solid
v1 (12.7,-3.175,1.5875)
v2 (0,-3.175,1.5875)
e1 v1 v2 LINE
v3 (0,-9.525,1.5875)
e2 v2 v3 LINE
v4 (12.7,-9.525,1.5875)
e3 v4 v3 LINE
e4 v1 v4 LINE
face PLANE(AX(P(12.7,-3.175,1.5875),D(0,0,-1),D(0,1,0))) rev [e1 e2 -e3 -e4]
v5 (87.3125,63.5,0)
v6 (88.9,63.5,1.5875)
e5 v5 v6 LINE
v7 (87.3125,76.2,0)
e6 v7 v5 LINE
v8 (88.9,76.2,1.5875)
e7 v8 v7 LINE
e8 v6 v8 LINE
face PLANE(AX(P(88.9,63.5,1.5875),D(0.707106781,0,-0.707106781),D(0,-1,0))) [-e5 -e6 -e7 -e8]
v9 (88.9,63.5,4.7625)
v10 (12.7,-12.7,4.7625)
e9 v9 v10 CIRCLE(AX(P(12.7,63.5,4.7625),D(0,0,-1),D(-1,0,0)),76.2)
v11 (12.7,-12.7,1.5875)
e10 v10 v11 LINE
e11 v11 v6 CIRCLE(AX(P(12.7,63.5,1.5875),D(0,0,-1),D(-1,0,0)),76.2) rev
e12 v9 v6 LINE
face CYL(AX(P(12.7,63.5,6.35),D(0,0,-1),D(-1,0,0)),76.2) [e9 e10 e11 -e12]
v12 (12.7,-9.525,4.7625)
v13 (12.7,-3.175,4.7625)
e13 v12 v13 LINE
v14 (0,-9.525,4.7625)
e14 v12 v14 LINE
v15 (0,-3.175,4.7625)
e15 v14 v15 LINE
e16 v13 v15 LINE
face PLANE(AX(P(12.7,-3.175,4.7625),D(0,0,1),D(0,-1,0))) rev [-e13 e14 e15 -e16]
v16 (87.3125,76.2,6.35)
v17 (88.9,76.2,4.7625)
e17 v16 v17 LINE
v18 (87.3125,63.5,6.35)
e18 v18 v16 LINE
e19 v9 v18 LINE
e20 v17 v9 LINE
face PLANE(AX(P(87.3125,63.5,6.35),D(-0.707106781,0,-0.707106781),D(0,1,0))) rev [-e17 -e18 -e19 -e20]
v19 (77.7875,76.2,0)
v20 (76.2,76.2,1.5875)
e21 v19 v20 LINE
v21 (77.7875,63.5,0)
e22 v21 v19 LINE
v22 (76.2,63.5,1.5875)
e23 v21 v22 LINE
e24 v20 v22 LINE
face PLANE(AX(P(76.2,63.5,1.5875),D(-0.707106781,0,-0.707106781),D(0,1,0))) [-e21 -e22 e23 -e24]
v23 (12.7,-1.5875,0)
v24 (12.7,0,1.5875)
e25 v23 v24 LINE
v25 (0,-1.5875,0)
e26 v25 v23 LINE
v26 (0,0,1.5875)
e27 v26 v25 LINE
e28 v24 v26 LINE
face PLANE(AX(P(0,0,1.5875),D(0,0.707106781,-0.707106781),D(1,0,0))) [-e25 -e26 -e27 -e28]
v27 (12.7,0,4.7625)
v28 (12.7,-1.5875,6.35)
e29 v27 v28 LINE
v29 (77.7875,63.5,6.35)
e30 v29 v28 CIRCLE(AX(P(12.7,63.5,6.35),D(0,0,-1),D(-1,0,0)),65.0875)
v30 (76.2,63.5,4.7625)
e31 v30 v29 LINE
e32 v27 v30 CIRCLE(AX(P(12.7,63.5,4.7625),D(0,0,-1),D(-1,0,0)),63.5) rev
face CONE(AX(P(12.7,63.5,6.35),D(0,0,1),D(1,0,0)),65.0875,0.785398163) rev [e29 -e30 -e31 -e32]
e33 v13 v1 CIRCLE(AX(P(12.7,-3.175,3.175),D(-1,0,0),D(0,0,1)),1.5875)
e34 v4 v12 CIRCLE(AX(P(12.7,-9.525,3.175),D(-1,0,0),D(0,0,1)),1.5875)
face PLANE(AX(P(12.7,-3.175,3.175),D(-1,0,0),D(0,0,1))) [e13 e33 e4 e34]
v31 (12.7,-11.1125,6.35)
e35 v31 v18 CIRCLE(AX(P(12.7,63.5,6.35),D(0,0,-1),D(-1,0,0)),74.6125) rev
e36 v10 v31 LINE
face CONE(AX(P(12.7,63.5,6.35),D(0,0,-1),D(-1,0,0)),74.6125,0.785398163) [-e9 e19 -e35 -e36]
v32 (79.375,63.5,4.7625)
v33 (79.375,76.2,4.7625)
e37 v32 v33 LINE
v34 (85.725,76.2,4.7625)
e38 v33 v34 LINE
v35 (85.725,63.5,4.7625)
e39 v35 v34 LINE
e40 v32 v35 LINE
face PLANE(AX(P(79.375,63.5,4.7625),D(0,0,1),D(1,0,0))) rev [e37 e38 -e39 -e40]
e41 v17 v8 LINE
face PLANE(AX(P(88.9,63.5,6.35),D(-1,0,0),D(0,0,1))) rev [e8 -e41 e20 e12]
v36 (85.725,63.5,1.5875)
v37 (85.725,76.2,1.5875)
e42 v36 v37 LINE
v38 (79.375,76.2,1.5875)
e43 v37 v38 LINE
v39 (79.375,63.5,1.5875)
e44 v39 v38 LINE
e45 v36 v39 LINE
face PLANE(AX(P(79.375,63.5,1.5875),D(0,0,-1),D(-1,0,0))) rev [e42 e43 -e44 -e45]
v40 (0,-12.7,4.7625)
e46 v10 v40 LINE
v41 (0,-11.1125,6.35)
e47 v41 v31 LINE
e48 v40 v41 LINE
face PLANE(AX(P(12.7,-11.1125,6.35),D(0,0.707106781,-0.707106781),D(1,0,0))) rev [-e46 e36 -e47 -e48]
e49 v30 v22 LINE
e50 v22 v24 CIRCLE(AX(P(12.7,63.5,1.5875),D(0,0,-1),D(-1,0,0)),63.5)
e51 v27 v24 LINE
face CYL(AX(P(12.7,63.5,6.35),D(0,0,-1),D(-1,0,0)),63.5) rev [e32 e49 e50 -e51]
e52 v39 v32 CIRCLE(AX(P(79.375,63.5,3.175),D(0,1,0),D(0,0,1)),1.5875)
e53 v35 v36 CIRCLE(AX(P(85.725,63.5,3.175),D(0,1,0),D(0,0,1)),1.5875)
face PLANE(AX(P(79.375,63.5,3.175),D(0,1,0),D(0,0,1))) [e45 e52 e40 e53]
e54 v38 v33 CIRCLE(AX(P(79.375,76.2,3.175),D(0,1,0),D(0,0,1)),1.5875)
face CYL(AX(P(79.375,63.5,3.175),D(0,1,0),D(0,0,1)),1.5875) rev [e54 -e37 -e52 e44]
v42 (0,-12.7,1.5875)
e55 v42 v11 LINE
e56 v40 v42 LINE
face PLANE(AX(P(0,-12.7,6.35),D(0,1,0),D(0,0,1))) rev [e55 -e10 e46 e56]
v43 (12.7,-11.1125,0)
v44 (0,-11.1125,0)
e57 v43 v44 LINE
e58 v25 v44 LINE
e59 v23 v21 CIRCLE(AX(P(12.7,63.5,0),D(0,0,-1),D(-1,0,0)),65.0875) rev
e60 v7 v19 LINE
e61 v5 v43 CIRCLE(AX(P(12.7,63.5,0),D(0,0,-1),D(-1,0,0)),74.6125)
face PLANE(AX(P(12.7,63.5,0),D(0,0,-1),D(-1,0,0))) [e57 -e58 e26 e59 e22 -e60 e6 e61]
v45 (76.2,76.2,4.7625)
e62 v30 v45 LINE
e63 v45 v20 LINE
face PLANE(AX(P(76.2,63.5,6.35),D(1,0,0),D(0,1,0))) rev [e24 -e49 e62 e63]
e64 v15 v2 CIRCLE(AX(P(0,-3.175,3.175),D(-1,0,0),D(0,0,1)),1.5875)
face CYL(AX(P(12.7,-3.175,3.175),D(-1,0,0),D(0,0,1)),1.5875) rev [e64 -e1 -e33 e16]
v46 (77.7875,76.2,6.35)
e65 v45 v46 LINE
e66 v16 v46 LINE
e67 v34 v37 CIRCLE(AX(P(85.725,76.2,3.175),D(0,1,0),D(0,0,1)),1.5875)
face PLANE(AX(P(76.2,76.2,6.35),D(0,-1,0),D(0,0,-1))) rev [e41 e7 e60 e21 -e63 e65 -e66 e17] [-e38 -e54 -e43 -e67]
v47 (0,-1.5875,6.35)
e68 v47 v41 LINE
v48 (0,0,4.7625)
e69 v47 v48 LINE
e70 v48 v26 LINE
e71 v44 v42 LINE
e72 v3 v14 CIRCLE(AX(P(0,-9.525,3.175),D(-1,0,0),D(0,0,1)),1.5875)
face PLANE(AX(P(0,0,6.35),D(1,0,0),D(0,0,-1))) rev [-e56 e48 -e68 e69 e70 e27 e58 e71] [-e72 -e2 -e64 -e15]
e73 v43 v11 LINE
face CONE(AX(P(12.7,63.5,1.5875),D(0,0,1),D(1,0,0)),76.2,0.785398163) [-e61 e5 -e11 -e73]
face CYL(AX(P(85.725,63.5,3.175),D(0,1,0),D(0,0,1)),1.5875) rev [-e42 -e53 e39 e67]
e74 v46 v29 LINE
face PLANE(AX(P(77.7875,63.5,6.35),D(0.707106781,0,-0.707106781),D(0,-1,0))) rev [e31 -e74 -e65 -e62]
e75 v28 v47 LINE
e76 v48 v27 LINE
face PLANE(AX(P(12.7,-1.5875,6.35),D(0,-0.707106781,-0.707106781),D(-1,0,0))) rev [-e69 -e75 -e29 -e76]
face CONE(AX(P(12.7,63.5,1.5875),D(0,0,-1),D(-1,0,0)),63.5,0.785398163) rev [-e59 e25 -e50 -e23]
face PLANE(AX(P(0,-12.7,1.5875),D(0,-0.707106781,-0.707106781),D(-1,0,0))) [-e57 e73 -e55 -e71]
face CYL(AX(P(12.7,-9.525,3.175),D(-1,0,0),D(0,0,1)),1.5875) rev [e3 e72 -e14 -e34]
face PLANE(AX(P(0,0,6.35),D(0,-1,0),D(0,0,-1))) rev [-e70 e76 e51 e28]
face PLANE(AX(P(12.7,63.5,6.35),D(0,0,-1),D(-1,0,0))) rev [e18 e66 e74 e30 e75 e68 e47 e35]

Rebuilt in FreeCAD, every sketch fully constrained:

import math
import FreeCAD as App
import Part
import Sketcher
Q = App.Units.Quantity


def edges_at(feature, points):
    """Names of the edges that pass closest to the given points."""
    edges = feature.Shape.Edges
    near = lambda p: min(range(len(edges)), key=lambda i: edges[i].distToShape(Part.Vertex(*p))[0])
    return sorted({f"Edge{near(p) + 1}" for p in points})

doc = App.newDocument("Part")
params = doc.addObject("Spreadsheet::Sheet", "Params")
for row, (alias, value) in enumerate([
    ("sketch1_radius", "3 in"),
    ("sketch1_radius2", "2.5 in"),
    ("pad1_length", "0.25 in"),
    ("sketch2_radius", "0.0625 in"),
    ("sketch2_width", "0.25 in"),
    ("pocket1_length", "0.5 in"),
    ("sketch3_radius", "0.0625 in"),
    ("sketch3_width", "0.25 in"),
    ("pocket2_length", "0.5 in"),
    ("chamfer_size", "0.0625 in"),
], start=1):
    params.set(f"A{row}", alias)
    params.set(f"B{row}", "=" + value)
    params.setAlias(f"B{row}", alias)

body = doc.addObject("PartDesign::Body", "Body")

# Sketch on XY plane
sketch1 = body.newObject("Sketcher::SketchObject", "Sketch")
sketch1.AttachmentSupport = (doc.getObject("XY_Plane"), [""])
sketch1.MapMode = "FlatFace"
sketch1.addGeometry(Part.LineSegment(App.Vector(13, 0, 0), App.Vector(0, 0, 0)), False)
sketch1.addGeometry(Part.LineSegment(App.Vector(0, 0, 0), App.Vector(0, -13, 0)), False)
sketch1.addGeometry(Part.LineSegment(App.Vector(0, -13, 0), App.Vector(13, -13, 0)), False)
sketch1.addGeometry(Part.ArcOfCircle(Part.Circle(App.Vector(13, 64, 0), App.Vector(0, 0, 1), 76), math.radians(-90), math.radians(0)), False)
sketch1.addGeometry(Part.LineSegment(App.Vector(89, 64, 0), App.Vector(89, 76, 0)), False)
sketch1.addGeometry(Part.LineSegment(App.Vector(89, 76, 0), App.Vector(76, 76, 0)), False)
sketch1.addGeometry(Part.LineSegment(App.Vector(76, 76, 0), App.Vector(76, 64, 0)), False)
sketch1.addGeometry(Part.ArcOfCircle(Part.Circle(App.Vector(13, 64, 0), App.Vector(0, 0, 1), 64), math.radians(-90), math.radians(0)), False)
sketch1.addConstraint(Sketcher.Constraint("Coincident", 0, 2, 1, 1))
sketch1.addConstraint(Sketcher.Constraint("Coincident", 1, 2, 2, 1))
sketch1.addConstraint(Sketcher.Constraint("Tangent", 2, 2, 3, 1))
sketch1.addConstraint(Sketcher.Constraint("Tangent", 3, 2, 4, 1))
sketch1.addConstraint(Sketcher.Constraint("Coincident", 4, 2, 5, 1))
sketch1.addConstraint(Sketcher.Constraint("Coincident", 5, 2, 6, 1))
sketch1.addConstraint(Sketcher.Constraint("Tangent", 6, 2, 7, 2))
sketch1.addConstraint(Sketcher.Constraint("Tangent", 7, 1, 0, 1))
sketch1.addConstraint(Sketcher.Constraint("Horizontal", 0))
sketch1.addConstraint(Sketcher.Constraint("Vertical", 1))
sketch1.addConstraint(Sketcher.Constraint("Horizontal", 2))
sketch1.addConstraint(Sketcher.Constraint("Vertical", 4))
sketch1.addConstraint(Sketcher.Constraint("Horizontal", 5))
sketch1.addConstraint(Sketcher.Constraint("Vertical", 6))
sketch1.addConstraint(Sketcher.Constraint("Coincident", 0, 2, -1, 1))
sketch1.addConstraint(Sketcher.Constraint("Coincident", 7, 3, 3, 3))
sketch1.addConstraint(Sketcher.Constraint("Equal", 2, 5))
sketch1.addConstraint(Sketcher.Constraint("Equal", 1, 4))
sketch1.addConstraint(Sketcher.Constraint("Radius", 3, Q("3 in")))
sketch1.addConstraint(Sketcher.Constraint("Radius", 7, Q("2.5 in")))
sketch1.setExpression("Constraints[18]", "Params.sketch1_radius")
sketch1.setExpression("Constraints[19]", "Params.sketch1_radius2")
pad1 = body.newObject("PartDesign::Pad", "Pad")
pad1.Profile = sketch1
pad1.setExpression("Length", "Params.pad1_length")

# Sketch on XZ plane
sketch2 = body.newObject("Sketcher::SketchObject", "Sketch001")
sketch2.AttachmentSupport = (doc.getObject("XZ_Plane"), [""])
sketch2.MapMode = "FlatFace"
sketch2.AttachmentOffset = App.Placement(App.Vector(0, 0, -3 * 25.4), App.Rotation())
sketch2.addGeometry(Part.LineSegment(App.Vector(85.7, 1.6, 0), App.Vector(79.4, 1.6, 0)), False)
sketch2.addGeometry(Part.ArcOfCircle(Part.Circle(App.Vector(79.4, 3.2, 0), App.Vector(0, 0, 1), 1.6), math.radians(90), math.radians(270)), False)
sketch2.addGeometry(Part.LineSegment(App.Vector(79.4, 4.8, 0), App.Vector(85.7, 4.8, 0)), False)
sketch2.addGeometry(Part.ArcOfCircle(Part.Circle(App.Vector(85.7, 3.2, 0), App.Vector(0, 0, 1), 1.6), math.radians(-90), math.radians(90)), False)
sketch2.addConstraint(Sketcher.Constraint("Tangent", 0, 2, 1, 2))
sketch2.addConstraint(Sketcher.Constraint("Tangent", 1, 1, 2, 1))
sketch2.addConstraint(Sketcher.Constraint("Tangent", 2, 2, 3, 2))
sketch2.addConstraint(Sketcher.Constraint("Tangent", 3, 1, 0, 1))
sketch2.addConstraint(Sketcher.Constraint("Horizontal", 0))
sketch2.addConstraint(Sketcher.Constraint("Horizontal", 2))
sketch2.addConstraint(Sketcher.Constraint("Radius", 1, Q("0.0625 in")))
sketch2.addConstraint(Sketcher.Constraint("DistanceX", 0, 2, 0, 1, Q("0.25 in")))
sketch2.addConstraint(Sketcher.Constraint("DistanceX", -1, 1, 1, 3, Q("3.125 in")))
sketch2.addConstraint(Sketcher.Constraint("DistanceY", -1, 1, 1, 3, Q("0.125 in")))
sketch2.setExpression("Constraints[6]", "Params.sketch2_radius")
sketch2.setExpression("Constraints[7]", "Params.sketch2_width")
pocket1 = body.newObject("PartDesign::Pocket", "Pocket")
pocket1.Profile = sketch2
pocket1.setExpression("Length", "Params.pocket1_length")
pocket1.Reversed = True

# Sketch on YZ plane
sketch3 = body.newObject("Sketcher::SketchObject", "Sketch002")
sketch3.AttachmentSupport = (doc.getObject("YZ_Plane"), [""])
sketch3.MapMode = "FlatFace"
sketch3.addGeometry(Part.LineSegment(App.Vector(-9.5, 4.8, 0), App.Vector(-3.2, 4.8, 0)), False)
sketch3.addGeometry(Part.ArcOfCircle(Part.Circle(App.Vector(-3.2, 3.2, 0), App.Vector(0, 0, 1), 1.6), math.radians(-90), math.radians(90)), False)
sketch3.addGeometry(Part.LineSegment(App.Vector(-3.2, 1.6, 0), App.Vector(-9.5, 1.6, 0)), False)
sketch3.addGeometry(Part.ArcOfCircle(Part.Circle(App.Vector(-9.5, 3.2, 0), App.Vector(0, 0, 1), 1.6), math.radians(90), math.radians(270)), False)
sketch3.addConstraint(Sketcher.Constraint("Tangent", 0, 2, 1, 2))
sketch3.addConstraint(Sketcher.Constraint("Tangent", 1, 1, 2, 1))
sketch3.addConstraint(Sketcher.Constraint("Tangent", 2, 2, 3, 2))
sketch3.addConstraint(Sketcher.Constraint("Tangent", 3, 1, 0, 1))
sketch3.addConstraint(Sketcher.Constraint("Horizontal", 0))
sketch3.addConstraint(Sketcher.Constraint("Horizontal", 2))
sketch3.addConstraint(Sketcher.Constraint("Radius", 1, Q("0.0625 in")))
sketch3.addConstraint(Sketcher.Constraint("DistanceX", 0, 1, 0, 2, Q("0.25 in")))
sketch3.addConstraint(Sketcher.Constraint("DistanceX", 1, 3, -1, 1, Q("0.125 in")))
sketch3.addConstraint(Sketcher.Constraint("DistanceY", -1, 1, 1, 3, Q("0.125 in")))
sketch3.setExpression("Constraints[6]", "Params.sketch3_radius")
sketch3.setExpression("Constraints[7]", "Params.sketch3_width")
pocket2 = body.newObject("PartDesign::Pocket", "Pocket001")
pocket2.Profile = sketch3
pocket2.setExpression("Length", "Params.pocket2_length")
pocket2.Reversed = True
doc.recompute()

chamfer = body.newObject("PartDesign::Chamfer", "Chamfer")
chamfer.Base = (pocket2, edges_at(pocket2, [
    (66.582, 9.618, 6.35),
    (6.35, -12.7, 0),
    (88.9, 69.85, 6.35),
    (76.2, 69.85, 6.35),
    (57.601, 18.599, 6.35),
    (6.35, 0, 6.35),
    (6.35, -12.7, 6.35),
    (6.35, 0, 0),
    (57.601, 18.599, 0),
    (76.2, 69.85, 0),
    (88.9, 69.85, 0),
    (66.582, 9.618, 0),
]))
chamfer.setExpression("Size", "Params.chamfer_size")

doc.recompute()
